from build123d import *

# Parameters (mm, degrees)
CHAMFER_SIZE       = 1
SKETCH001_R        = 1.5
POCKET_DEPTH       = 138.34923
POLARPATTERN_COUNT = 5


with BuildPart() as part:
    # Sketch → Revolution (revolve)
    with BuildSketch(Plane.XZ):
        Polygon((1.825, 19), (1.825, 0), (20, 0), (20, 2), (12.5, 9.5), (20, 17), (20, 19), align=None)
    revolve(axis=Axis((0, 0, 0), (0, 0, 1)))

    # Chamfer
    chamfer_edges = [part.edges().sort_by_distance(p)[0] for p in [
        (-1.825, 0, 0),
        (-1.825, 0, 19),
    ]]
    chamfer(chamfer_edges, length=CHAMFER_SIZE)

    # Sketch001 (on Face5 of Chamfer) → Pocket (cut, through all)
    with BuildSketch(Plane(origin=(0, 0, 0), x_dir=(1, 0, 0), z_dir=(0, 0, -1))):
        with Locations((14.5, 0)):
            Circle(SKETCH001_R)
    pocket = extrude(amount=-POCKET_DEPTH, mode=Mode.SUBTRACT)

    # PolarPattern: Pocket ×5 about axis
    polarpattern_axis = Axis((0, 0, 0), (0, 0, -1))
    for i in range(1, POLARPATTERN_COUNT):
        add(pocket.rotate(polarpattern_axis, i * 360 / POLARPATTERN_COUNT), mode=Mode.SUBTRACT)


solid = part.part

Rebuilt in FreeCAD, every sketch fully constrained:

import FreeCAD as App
import Part
import Sketcher

V = App.Vector


def edges_at(feature, points):
    """Names of the edges that pass closest to the given points."""
    edges = feature.Shape.Edges
    near = lambda p: min(range(len(edges)), key=lambda i: edges[i].distToShape(Part.Vertex(*p))[0])
    return sorted({f"Edge{near(p) + 1}" for p in points})


def add_polygon(sketch, points):
    """Adds a closed chain of lines whose ends are joined by coincident constraints."""
    first, n = sketch.GeometryCount, len(points)
    for a, b in zip(points, points[1:] + points[:1]):
        sketch.addGeometry(Part.LineSegment(App.Vector(*a, 0), App.Vector(*b, 0)), False)
    for i in range(n):
        sketch.addConstraint(Sketcher.Constraint("Coincident", first + i, 2, first + (i + 1) % n, 1))

doc = App.newDocument("Part")
body = doc.addObject("PartDesign::Body", "Body")

# Sketch on XZ plane
sketch1 = body.newObject("Sketcher::SketchObject", "Sketch")
sketch1.AttachmentSupport = (doc.getObject("XZ_Plane"), [""])
sketch1.MapMode = "FlatFace"
add_polygon(sketch1, [(1.8, 19), (1.8, 0), (20, 0), (20, 2), (12.5, 9.5), (20, 17), (20, 19)])  # lines 0-6
sketch1.addConstraint([
    Sketcher.Constraint("Vertical", 0),
    Sketcher.Constraint("Horizontal", 1),
    Sketcher.Constraint("Vertical", 2),
    Sketcher.Constraint("Vertical", 5),
    Sketcher.Constraint("Horizontal", 6),
    Sketcher.Constraint("PointOnObject", 0, 2, -1),
    Sketcher.Constraint("Perpendicular", 3, 4),
    Sketcher.Constraint("Vertical", 2, 2, 4, 2),
    Sketcher.Constraint("Equal", 2, 5),
    Sketcher.Constraint("Equal", 3, 4),
    Sketcher.Constraint("DistanceY", 0, 2, 0, 1, 19.0),
    Sketcher.Constraint("DistanceY", 2, 1, 2, 2, 2.0),
    Sketcher.Constraint("DistanceX", -1, 1, 1, 2, 20.0),
    Sketcher.Constraint("DistanceX", 1, 1, 1, 2, 18.175),
])
revolution = body.newObject("PartDesign::Revolution", "Revolution")
revolution.Profile = sketch1
revolution.ReferenceAxis = (sketch1, ["V_Axis"])
revolution.Angle = 360
doc.recompute()

chamfer = body.newObject("PartDesign::Chamfer", "Chamfer")
chamfer.Base = (revolution, edges_at(revolution, [(-1.825, 0, 0), (-1.825, 0, 19)]))
chamfer.Size = 1

# Sketch on XY plane
sketch2 = body.newObject("Sketcher::SketchObject", "Sketch001")
sketch2.AttachmentSupport = (doc.getObject("XY_Plane"), [""])
sketch2.MapMode = "FlatFace"
sketch2.addGeometry(Part.Circle(V(14.5, 0, 0), V(0, 0, 1), 1.5), False)
sketch2.addConstraint([
    Sketcher.Constraint("PointOnObject", 0, 3, -1),
    Sketcher.Constraint("Diameter", 0, 3.0),
    Sketcher.Constraint("DistanceX", -1, 1, 0, 3, 14.5),
])
pocket1 = body.newObject("PartDesign::Pocket", "Pocket")
pocket1.Profile = sketch2
pocket1.Type = "ThroughAll"
pocket1.Reversed = True
doc.recompute()

polarpattern = body.newObject("PartDesign::PolarPattern", "PolarPattern")
polarpattern.Originals = [pocket1]
polarpattern.Axis = (doc.getObject("Z_Axis"), [""])
polarpattern.Angle = 360
polarpattern.Occurrences = 5
body.Tip = polarpattern

doc.recompute()
